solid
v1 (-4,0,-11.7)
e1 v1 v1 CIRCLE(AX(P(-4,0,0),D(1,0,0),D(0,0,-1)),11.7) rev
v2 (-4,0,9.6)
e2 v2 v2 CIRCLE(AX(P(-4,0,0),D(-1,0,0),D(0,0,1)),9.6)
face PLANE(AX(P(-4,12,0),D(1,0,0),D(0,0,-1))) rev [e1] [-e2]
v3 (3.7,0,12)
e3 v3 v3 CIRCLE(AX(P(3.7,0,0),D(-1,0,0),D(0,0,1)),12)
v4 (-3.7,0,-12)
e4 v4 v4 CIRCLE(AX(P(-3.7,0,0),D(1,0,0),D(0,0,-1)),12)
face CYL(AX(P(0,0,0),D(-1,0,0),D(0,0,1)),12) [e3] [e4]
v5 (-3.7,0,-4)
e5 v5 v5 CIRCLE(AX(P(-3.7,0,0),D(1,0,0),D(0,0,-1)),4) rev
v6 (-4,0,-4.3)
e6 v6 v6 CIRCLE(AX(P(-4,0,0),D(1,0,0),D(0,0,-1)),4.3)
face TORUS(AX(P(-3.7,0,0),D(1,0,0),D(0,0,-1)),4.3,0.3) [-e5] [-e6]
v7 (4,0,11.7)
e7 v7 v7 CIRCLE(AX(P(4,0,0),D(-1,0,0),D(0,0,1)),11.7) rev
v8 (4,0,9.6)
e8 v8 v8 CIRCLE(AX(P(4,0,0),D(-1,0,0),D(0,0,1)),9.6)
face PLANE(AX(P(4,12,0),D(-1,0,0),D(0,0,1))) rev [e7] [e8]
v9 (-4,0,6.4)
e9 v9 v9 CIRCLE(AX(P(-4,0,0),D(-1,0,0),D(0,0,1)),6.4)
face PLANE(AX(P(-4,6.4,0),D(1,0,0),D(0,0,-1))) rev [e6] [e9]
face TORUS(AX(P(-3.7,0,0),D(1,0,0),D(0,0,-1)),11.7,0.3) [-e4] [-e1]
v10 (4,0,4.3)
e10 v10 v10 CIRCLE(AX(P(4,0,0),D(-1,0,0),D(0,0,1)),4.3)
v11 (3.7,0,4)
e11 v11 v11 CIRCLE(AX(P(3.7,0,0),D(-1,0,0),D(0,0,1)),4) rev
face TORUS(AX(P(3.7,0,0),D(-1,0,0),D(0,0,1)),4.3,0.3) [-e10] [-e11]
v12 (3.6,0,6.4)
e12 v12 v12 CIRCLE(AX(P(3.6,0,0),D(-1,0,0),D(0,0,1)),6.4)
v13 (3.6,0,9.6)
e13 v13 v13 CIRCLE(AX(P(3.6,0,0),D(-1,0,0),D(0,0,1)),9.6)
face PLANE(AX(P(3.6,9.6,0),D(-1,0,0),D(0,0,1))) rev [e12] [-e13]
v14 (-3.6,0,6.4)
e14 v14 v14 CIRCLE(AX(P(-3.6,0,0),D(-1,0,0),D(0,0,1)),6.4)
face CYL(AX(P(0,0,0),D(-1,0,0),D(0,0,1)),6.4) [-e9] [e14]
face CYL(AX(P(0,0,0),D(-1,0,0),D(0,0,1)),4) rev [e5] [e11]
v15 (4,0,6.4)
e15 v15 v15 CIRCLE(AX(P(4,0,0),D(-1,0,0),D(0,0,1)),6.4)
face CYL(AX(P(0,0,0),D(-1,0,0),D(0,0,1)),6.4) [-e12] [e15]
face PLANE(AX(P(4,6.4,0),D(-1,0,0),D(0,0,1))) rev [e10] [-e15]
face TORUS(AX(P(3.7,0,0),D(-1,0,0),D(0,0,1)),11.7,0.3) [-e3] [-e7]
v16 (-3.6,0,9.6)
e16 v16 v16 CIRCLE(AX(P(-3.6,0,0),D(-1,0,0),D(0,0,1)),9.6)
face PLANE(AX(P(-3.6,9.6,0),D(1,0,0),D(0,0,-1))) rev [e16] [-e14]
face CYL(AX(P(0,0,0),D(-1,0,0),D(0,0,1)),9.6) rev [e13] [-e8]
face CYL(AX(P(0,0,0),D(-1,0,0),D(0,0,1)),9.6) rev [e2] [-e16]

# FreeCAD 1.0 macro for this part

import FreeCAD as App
import Part
import Sketcher

V = App.Vector
Q = App.Units.Quantity


def edges_at(feature, points):
    """Names of the edges that pass closest to the given points."""
    edges = feature.Shape.Edges
    near = lambda p: min(range(len(edges)), key=lambda i: edges[i].distToShape(Part.Vertex(*p))[0])
    return sorted({f"Edge{near(p) + 1}" for p in points})

doc = App.newDocument("Part")
body = doc.addObject("PartDesign::Body", "Body")

# Sketch on XY plane
sketch1 = body.newObject("Sketcher::SketchObject", "Sketch")
sketch1.AttachmentSupport = (doc.getObject("XY_Plane"), [""])
sketch1.MapMode = "FlatFace"
sketch1.addGeometry(Part.LineSegment(V(4, 12, 0), V(-4, 12, 0)), False)
sketch1.addGeometry(Part.LineSegment(V(-4, 12, 0), V(-4, 9.6, 0)), False)
sketch1.addGeometry(Part.LineSegment(V(-4, 9.6, 0), V(-3.6, 9.6, 0)), False)
sketch1.addGeometry(Part.LineSegment(V(-3.6, 9.6, 0), V(-3.6, 6.4, 0)), False)
sketch1.addGeometry(Part.LineSegment(V(-3.6, 6.4, 0), V(-4, 6.4, 0)), False)
sketch1.addGeometry(Part.LineSegment(V(-4, 6.4, 0), V(-4, 4, 0)), False)
sketch1.addGeometry(Part.LineSegment(V(-4, 4, 0), V(4, 4, 0)), False)
sketch1.addGeometry(Part.LineSegment(V(4, 4, 0), V(4, 6.4, 0)), False)
sketch1.addGeometry(Part.LineSegment(V(4, 6.4, 0), V(3.6, 6.4, 0)), False)
sketch1.addGeometry(Part.LineSegment(V(3.6, 6.4, 0), V(3.6, 9.6, 0)), False)
sketch1.addGeometry(Part.LineSegment(V(3.6, 9.6, 0), V(4, 9.6, 0)), False)
sketch1.addGeometry(Part.LineSegment(V(4, 9.6, 0), V(4, 12, 0)), False)
sketch1.addConstraint(Sketcher.Constraint("Coincident", 0, 2, 1, 1))
sketch1.addConstraint(Sketcher.Constraint("Coincident", 1, 2, 2, 1))
sketch1.addConstraint(Sketcher.Constraint("Coincident", 2, 2, 3, 1))
sketch1.addConstraint(Sketcher.Constraint("Coincident", 3, 2, 4, 1))
sketch1.addConstraint(Sketcher.Constraint("Coincident", 4, 2, 5, 1))
sketch1.addConstraint(Sketcher.Constraint("Coincident", 5, 2, 6, 1))
sketch1.addConstraint(Sketcher.Constraint("Coincident", 6, 2, 7, 1))
sketch1.addConstraint(Sketcher.Constraint("Coincident", 7, 2, 8, 1))
sketch1.addConstraint(Sketcher.Constraint("Coincident", 8, 2, 9, 1))
sketch1.addConstraint(Sketcher.Constraint("Coincident", 9, 2, 10, 1))
sketch1.addConstraint(Sketcher.Constraint("Coincident", 10, 2, 11, 1))
sketch1.addConstraint(Sketcher.Constraint("Coincident", 11, 2, 0, 1))
sketch1.addConstraint(Sketcher.Constraint("Horizontal", 0))
sketch1.addConstraint(Sketcher.Constraint("Vertical", 1))
sketch1.addConstraint(Sketcher.Constraint("Horizontal", 2))
sketch1.addConstraint(Sketcher.Constraint("Vertical", 3))
sketch1.addConstraint(Sketcher.Constraint("Horizontal", 4))
sketch1.addConstraint(Sketcher.Constraint("Vertical", 5))
sketch1.addConstraint(Sketcher.Constraint("Horizontal", 6))
sketch1.addConstraint(Sketcher.Constraint("Vertical", 7))
sketch1.addConstraint(Sketcher.Constraint("Horizontal", 8))
sketch1.addConstraint(Sketcher.Constraint("Vertical", 9))
sketch1.addConstraint(Sketcher.Constraint("Horizontal", 10))
sketch1.addConstraint(Sketcher.Constraint("Vertical", 11))
sketch1.addConstraint(Sketcher.Constraint("Symmetric", 4, 2, 7, 2, -2))
sketch1.addConstraint(Sketcher.Constraint("Symmetric", 2, 2, 9, 2, -2))
sketch1.addConstraint(Sketcher.Constraint("Vertical", 1, 2, 4, 2))
sketch1.addConstraint(Sketcher.Constraint("Vertical", 7, 2, 10, 2))
sketch1.addConstraint(Sketcher.Constraint("Equal", 1, 5))
sketch1.addConstraint(Sketcher.Constraint("DistanceX", 0, 2, 0, 1, Q("8 mm")))
sketch1.addConstraint(Sketcher.Constraint("DistanceX", 2, 1, 2, 2, Q("0.4 mm")))
sketch1.addConstraint(Sketcher.Constraint("DistanceY", 1, 2, 1, 1, Q("2.4 mm")))
sketch1.addConstraint(Sketcher.Constraint("DistanceY", 3, 2, 3, 1, Q("3.2 mm")))
sketch1.addConstraint(Sketcher.Constraint("DistanceY", -1, 1, 0, 2, Q("12 mm")))
revolution = body.newObject("PartDesign::Revolution", "Revolution")
revolution.Profile = sketch1
revolution.ReferenceAxis = (sketch1, ["H_Axis"])
revolution.Angle = 360
doc.recompute()

fillet = body.newObject("PartDesign::Fillet", "Fillet")
fillet.Base = (revolution, edges_at(revolution, [
    (4, 0, -4),
    (-4, 0, -4),
    (-4, 0, -12),
    (4, 0, -12),
]))
fillet.Radius = 0.3

doc.recompute()
